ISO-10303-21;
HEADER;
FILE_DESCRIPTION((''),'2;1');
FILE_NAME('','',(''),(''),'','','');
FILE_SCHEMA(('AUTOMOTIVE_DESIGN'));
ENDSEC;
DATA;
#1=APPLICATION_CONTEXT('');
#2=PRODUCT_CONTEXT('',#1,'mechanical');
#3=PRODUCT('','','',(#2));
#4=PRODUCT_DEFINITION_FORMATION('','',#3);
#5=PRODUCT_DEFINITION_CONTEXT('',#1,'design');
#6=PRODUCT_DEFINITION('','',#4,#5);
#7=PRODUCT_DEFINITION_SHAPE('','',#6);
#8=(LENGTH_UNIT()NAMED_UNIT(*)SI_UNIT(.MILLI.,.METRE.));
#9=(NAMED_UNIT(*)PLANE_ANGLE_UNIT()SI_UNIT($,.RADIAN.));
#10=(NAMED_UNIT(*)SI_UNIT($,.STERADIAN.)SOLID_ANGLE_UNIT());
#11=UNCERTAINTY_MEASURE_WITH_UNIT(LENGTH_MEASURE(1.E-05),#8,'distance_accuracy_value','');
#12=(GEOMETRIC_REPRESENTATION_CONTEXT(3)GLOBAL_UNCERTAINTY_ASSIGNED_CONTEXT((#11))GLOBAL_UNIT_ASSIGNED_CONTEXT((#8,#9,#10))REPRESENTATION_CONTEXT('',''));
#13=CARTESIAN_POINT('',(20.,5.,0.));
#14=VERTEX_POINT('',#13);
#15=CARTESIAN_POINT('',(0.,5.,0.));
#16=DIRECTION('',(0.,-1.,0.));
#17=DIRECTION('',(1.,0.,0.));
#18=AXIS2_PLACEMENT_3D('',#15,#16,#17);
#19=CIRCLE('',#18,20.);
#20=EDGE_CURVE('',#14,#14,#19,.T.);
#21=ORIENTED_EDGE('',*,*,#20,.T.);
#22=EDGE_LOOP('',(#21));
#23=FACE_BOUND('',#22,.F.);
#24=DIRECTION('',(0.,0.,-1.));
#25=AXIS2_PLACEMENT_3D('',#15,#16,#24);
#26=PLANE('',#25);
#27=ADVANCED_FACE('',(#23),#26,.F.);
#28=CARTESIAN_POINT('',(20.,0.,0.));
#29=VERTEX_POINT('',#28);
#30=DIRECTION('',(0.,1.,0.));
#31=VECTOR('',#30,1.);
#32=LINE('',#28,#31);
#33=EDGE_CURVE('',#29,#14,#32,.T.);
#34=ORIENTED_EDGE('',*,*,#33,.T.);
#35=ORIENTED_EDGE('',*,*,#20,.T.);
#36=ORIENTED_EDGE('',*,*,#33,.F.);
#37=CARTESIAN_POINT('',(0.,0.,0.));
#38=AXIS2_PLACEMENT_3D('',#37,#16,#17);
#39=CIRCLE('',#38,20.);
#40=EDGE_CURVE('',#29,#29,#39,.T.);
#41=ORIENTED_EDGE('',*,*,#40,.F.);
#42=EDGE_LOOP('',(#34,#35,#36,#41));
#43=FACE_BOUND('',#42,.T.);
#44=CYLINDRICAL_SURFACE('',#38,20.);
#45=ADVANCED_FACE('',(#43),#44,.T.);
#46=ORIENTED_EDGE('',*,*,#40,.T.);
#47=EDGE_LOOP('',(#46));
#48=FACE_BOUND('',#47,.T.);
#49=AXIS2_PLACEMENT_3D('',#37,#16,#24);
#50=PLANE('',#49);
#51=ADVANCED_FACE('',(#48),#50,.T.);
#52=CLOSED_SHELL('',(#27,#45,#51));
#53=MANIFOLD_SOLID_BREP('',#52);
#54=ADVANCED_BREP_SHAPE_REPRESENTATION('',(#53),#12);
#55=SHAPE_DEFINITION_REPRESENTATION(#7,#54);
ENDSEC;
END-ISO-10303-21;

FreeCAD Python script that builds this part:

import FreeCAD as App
import Part
import Sketcher
from FreeCAD import Vector

doc = App.newDocument("Part")
body = doc.addObject("PartDesign::Body", "Body")

sketch1 = body.newObject("Sketcher::SketchObject", "Sketch")
sketch1.AttachmentSupport = (doc.getObject("XZ_Plane"), [""])
sketch1.MapMode = "FlatFace"
sketch1.addGeometry(Part.Circle(Vector(0, 0, 0), Vector(0, 0, 1), 20), False)
sketch1.addConstraint(Sketcher.Constraint("Coincident", 0, 3, -1, 1))
sketch1.addConstraint(Sketcher.Constraint("Diameter", 0, 40.0))
pad1 = body.newObject("PartDesign::Pad", "Pad")
pad1.Profile = sketch1
pad1.Length = 5
pad1.Reversed = True

doc.recompute()
